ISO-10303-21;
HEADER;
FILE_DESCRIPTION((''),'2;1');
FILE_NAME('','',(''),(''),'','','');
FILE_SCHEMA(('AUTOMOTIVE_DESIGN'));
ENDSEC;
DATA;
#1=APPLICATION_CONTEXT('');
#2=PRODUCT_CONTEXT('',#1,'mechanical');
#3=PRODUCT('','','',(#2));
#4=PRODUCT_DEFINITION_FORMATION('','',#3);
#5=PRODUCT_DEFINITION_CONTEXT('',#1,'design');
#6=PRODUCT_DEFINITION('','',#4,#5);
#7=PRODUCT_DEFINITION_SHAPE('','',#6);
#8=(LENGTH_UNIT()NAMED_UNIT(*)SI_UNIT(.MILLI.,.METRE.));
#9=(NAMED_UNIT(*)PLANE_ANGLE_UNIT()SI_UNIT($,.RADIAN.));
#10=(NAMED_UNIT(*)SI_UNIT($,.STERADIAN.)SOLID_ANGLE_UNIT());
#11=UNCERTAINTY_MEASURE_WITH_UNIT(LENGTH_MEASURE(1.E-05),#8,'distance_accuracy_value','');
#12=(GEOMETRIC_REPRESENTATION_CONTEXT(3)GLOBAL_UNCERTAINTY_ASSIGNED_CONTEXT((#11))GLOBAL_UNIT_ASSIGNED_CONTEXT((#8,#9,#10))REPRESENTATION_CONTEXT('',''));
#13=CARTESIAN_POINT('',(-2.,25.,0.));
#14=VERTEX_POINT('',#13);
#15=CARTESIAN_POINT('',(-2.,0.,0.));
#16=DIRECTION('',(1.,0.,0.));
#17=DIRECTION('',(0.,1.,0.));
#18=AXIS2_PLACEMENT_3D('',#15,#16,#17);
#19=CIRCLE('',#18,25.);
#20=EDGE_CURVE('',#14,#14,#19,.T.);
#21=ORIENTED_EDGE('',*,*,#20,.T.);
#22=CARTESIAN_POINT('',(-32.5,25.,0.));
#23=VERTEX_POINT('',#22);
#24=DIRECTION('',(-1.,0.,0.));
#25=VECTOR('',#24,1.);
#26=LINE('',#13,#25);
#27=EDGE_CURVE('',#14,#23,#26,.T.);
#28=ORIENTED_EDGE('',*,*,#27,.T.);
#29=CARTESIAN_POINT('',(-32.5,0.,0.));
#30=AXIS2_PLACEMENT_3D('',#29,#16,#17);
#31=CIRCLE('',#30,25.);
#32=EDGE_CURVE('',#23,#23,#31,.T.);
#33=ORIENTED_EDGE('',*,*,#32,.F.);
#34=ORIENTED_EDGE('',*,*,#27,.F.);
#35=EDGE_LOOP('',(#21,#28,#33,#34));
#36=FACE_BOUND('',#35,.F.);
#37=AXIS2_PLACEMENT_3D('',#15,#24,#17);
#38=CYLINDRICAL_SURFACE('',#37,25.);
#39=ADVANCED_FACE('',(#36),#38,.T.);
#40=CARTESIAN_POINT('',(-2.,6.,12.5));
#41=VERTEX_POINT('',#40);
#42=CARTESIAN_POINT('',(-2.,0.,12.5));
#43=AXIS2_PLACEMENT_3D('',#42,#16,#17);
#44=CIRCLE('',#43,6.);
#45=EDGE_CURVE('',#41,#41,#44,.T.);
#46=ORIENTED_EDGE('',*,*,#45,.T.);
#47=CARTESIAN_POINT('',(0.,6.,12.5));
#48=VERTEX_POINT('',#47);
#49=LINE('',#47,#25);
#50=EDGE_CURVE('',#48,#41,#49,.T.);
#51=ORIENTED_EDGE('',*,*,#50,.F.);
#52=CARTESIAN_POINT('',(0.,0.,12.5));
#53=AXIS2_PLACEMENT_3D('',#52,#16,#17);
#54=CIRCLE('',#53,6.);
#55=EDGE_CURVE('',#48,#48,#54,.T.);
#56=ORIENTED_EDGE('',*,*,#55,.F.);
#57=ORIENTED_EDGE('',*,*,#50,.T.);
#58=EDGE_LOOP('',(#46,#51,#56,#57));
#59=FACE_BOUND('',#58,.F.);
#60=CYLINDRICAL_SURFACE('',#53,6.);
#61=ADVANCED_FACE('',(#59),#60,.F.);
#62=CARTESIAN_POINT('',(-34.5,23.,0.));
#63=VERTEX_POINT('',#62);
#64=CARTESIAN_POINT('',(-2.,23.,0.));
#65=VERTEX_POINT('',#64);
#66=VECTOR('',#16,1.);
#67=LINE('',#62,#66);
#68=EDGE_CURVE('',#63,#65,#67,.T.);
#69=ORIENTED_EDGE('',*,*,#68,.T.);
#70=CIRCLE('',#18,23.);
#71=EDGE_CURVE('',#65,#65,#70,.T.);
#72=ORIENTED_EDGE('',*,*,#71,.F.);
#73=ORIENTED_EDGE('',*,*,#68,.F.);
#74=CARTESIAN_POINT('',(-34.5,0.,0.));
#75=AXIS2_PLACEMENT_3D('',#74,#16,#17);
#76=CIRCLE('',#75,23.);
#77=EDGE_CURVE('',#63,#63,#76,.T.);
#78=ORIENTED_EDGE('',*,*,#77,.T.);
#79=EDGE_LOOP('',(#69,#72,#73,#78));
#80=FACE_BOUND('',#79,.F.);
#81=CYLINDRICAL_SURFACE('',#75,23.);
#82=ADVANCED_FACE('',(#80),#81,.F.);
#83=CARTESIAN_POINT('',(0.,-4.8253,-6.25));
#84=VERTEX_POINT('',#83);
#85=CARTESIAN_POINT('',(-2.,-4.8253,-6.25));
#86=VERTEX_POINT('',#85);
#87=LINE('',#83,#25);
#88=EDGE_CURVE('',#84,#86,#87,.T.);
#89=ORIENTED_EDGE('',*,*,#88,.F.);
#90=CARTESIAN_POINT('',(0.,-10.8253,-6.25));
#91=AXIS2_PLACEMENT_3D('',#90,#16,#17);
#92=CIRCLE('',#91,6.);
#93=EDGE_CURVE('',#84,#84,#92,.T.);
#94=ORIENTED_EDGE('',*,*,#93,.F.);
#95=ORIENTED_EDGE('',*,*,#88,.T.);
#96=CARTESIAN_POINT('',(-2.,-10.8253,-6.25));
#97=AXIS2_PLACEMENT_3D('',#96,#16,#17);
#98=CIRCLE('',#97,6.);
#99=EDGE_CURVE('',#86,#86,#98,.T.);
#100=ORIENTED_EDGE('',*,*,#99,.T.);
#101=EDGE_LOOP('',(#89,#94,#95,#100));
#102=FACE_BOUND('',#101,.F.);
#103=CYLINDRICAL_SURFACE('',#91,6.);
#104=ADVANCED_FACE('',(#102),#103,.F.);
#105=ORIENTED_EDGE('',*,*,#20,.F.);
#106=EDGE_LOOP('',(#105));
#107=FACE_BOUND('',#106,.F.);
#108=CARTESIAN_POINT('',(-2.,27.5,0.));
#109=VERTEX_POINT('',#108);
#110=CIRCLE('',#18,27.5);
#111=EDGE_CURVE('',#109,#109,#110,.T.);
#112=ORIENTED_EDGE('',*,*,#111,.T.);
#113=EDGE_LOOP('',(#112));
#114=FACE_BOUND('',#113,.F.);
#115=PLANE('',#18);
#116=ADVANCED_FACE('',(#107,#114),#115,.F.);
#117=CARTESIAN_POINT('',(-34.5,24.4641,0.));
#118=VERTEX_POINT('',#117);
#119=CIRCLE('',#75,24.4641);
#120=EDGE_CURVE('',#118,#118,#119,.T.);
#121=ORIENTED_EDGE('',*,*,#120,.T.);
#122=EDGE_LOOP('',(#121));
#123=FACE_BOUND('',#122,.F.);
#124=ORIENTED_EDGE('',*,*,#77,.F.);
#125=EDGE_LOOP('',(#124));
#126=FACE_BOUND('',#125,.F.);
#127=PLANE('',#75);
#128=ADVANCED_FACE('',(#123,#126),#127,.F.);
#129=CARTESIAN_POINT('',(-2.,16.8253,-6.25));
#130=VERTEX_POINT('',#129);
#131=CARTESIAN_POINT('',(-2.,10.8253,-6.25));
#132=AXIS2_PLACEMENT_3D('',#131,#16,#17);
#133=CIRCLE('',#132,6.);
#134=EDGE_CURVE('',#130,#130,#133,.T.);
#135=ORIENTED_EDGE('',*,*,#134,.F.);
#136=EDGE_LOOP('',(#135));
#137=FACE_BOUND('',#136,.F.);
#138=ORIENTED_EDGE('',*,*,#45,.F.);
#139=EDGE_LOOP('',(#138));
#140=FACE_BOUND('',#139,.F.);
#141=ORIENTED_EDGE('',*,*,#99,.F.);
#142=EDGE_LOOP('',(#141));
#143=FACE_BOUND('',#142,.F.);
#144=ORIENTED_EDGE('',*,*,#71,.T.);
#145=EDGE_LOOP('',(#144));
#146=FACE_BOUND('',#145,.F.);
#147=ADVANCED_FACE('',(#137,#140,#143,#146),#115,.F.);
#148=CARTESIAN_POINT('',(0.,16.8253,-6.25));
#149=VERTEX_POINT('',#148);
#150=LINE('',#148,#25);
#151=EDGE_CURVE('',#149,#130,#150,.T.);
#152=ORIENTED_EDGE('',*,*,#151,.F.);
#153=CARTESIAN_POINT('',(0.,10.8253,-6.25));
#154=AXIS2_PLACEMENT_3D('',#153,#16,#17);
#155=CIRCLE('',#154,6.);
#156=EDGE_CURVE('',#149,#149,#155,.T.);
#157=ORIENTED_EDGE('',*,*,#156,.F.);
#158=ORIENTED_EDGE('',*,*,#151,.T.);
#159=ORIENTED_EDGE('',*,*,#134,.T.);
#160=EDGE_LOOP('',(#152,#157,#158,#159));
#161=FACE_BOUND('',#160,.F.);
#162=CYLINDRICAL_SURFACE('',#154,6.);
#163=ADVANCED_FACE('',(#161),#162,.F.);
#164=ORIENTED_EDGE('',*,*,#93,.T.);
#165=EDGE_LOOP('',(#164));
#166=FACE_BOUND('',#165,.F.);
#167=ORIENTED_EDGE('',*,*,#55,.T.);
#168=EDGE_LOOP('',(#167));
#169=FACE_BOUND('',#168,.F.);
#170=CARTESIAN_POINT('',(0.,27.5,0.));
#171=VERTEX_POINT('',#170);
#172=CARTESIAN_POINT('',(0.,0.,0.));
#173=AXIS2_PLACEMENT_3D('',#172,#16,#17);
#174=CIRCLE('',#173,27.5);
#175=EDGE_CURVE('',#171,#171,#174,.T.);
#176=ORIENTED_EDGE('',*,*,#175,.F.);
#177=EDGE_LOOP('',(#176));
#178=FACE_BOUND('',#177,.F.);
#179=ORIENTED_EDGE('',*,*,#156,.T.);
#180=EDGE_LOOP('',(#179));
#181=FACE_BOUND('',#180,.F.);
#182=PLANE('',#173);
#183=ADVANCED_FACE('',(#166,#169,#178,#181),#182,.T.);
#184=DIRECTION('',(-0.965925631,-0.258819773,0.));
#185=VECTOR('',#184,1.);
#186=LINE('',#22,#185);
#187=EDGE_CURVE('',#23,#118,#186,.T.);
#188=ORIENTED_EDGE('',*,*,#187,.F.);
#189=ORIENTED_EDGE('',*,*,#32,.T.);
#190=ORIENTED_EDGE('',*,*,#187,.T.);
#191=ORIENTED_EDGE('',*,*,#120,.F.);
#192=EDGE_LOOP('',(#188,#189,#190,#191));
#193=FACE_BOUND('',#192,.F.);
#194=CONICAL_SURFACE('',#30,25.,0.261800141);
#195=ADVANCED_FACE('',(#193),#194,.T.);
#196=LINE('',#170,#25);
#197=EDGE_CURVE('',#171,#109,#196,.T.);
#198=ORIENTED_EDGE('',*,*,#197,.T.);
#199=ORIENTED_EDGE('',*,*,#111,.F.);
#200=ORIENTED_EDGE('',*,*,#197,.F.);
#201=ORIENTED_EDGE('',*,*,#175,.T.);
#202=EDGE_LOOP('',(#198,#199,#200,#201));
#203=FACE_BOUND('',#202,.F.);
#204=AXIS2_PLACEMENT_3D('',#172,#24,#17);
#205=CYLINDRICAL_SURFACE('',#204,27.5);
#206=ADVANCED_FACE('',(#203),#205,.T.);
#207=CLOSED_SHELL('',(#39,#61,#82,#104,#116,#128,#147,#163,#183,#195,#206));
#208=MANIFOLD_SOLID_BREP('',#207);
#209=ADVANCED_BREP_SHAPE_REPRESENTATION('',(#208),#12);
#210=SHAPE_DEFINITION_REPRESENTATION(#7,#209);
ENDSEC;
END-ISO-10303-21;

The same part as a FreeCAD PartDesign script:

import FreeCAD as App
import Part
import Sketcher
Q = App.Units.Quantity


def add_polygon(sketch, points):
    """Adds a closed chain of lines whose ends are joined by coincident constraints."""
    first, n = sketch.GeometryCount, len(points)
    for a, b in zip(points, points[1:] + points[:1]):
        sketch.addGeometry(Part.LineSegment(App.Vector(*a, 0), App.Vector(*b, 0)), False)
    for i in range(n):
        sketch.addConstraint(Sketcher.Constraint("Coincident", first + i, 2, first + (i + 1) % n, 1))

doc = App.newDocument("Part")
body = doc.addObject("PartDesign::Body", "Body")

sketch1 = body.newObject("Sketcher::SketchObject", "Sketch")
sketch1.AttachmentSupport = (doc.getObject("XY_Plane"), [""])
sketch1.MapMode = "FlatFace"
add_polygon(sketch1, [(-2, 0), (0, 0), (0, 27.5), (-2, 27.5), (-2, 25), (-32.5, 25), (-34.5, 24.5), (-34.5, 23), (-2, 23)])
sketch1.addConstraint([
    Sketcher.Constraint("Horizontal", 0),
    Sketcher.Constraint("Vertical", 1),
    Sketcher.Constraint("Horizontal", 2),
    Sketcher.Constraint("Vertical", 3),
    Sketcher.Constraint("Horizontal", 4),
    Sketcher.Constraint("Vertical", 6),
    Sketcher.Constraint("Horizontal", 7),
    Sketcher.Constraint("Vertical", 8),
    Sketcher.Constraint("Coincident", 0, 2, -1, 1),
    Sketcher.Constraint("Vertical", 3, 2, 7, 2),
    Sketcher.Constraint("DistanceX", 0, 1, 0, 2, Q("2 mm")),
    Sketcher.Constraint("DistanceY", 8, 2, 8, 1, Q("23 mm")),
    Sketcher.Constraint("DistanceX", 7, 1, 7, 2, Q("32.5 mm")),
    Sketcher.Constraint("DistanceY", 1, 1, 1, 2, Q("27.5 mm")),
    Sketcher.Constraint("DistanceY", -1, 1, 3, 2, Q("25 mm")),
    Sketcher.Constraint("DistanceX", 5, 2, 4, 2, Q("2 mm")),
    Sketcher.Constraint("Angle", 5, Q("-165 deg")),
])
revolution = body.newObject("PartDesign::Revolution", "Revolution")
revolution.Profile = sketch1
revolution.ReferenceAxis = (sketch1, ["H_Axis"])
revolution.Angle = 360

sketch2 = body.newObject("Sketcher::SketchObject", "Sketch001")
sketch2.AttachmentSupport = (doc.getObject("YZ_Plane"), [""])
sketch2.MapMode = "FlatFace"
sketch2.addGeometry([
    Part.Circle(App.Vector(-11, -6, 0), App.Vector(0, 0, 1), 6),
    Part.Circle(App.Vector(0, 12, 0), App.Vector(0, 0, 1), 6),
    Part.Circle(App.Vector(11, -6, 0), App.Vector(0, 0, 1), 6),
], False)
sketch2.addConstraint([
    Sketcher.Constraint("Equal", 0, 1),
    Sketcher.Constraint("Equal", 1, 2),
    Sketcher.Constraint("Symmetric", 0, 3, 2, 3, -2),
    Sketcher.Constraint("PointOnObject", 1, 3, -2),
    Sketcher.Constraint("Diameter", 0, Q("12 mm")),
    Sketcher.Constraint("DistanceY", -1, 1, 1, 3, Q("12.5 mm")),
    Sketcher.Constraint("DistanceY", 0, 3, -1, 1, Q("6.25 mm")),
    Sketcher.Constraint("DistanceX", 0, 3, -1, 1, Q("10.8253 mm")),
])
pocket1 = body.newObject("PartDesign::Pocket", "Pocket")
pocket1.Profile = sketch2
pocket1.Length = 2

doc.recompute()
